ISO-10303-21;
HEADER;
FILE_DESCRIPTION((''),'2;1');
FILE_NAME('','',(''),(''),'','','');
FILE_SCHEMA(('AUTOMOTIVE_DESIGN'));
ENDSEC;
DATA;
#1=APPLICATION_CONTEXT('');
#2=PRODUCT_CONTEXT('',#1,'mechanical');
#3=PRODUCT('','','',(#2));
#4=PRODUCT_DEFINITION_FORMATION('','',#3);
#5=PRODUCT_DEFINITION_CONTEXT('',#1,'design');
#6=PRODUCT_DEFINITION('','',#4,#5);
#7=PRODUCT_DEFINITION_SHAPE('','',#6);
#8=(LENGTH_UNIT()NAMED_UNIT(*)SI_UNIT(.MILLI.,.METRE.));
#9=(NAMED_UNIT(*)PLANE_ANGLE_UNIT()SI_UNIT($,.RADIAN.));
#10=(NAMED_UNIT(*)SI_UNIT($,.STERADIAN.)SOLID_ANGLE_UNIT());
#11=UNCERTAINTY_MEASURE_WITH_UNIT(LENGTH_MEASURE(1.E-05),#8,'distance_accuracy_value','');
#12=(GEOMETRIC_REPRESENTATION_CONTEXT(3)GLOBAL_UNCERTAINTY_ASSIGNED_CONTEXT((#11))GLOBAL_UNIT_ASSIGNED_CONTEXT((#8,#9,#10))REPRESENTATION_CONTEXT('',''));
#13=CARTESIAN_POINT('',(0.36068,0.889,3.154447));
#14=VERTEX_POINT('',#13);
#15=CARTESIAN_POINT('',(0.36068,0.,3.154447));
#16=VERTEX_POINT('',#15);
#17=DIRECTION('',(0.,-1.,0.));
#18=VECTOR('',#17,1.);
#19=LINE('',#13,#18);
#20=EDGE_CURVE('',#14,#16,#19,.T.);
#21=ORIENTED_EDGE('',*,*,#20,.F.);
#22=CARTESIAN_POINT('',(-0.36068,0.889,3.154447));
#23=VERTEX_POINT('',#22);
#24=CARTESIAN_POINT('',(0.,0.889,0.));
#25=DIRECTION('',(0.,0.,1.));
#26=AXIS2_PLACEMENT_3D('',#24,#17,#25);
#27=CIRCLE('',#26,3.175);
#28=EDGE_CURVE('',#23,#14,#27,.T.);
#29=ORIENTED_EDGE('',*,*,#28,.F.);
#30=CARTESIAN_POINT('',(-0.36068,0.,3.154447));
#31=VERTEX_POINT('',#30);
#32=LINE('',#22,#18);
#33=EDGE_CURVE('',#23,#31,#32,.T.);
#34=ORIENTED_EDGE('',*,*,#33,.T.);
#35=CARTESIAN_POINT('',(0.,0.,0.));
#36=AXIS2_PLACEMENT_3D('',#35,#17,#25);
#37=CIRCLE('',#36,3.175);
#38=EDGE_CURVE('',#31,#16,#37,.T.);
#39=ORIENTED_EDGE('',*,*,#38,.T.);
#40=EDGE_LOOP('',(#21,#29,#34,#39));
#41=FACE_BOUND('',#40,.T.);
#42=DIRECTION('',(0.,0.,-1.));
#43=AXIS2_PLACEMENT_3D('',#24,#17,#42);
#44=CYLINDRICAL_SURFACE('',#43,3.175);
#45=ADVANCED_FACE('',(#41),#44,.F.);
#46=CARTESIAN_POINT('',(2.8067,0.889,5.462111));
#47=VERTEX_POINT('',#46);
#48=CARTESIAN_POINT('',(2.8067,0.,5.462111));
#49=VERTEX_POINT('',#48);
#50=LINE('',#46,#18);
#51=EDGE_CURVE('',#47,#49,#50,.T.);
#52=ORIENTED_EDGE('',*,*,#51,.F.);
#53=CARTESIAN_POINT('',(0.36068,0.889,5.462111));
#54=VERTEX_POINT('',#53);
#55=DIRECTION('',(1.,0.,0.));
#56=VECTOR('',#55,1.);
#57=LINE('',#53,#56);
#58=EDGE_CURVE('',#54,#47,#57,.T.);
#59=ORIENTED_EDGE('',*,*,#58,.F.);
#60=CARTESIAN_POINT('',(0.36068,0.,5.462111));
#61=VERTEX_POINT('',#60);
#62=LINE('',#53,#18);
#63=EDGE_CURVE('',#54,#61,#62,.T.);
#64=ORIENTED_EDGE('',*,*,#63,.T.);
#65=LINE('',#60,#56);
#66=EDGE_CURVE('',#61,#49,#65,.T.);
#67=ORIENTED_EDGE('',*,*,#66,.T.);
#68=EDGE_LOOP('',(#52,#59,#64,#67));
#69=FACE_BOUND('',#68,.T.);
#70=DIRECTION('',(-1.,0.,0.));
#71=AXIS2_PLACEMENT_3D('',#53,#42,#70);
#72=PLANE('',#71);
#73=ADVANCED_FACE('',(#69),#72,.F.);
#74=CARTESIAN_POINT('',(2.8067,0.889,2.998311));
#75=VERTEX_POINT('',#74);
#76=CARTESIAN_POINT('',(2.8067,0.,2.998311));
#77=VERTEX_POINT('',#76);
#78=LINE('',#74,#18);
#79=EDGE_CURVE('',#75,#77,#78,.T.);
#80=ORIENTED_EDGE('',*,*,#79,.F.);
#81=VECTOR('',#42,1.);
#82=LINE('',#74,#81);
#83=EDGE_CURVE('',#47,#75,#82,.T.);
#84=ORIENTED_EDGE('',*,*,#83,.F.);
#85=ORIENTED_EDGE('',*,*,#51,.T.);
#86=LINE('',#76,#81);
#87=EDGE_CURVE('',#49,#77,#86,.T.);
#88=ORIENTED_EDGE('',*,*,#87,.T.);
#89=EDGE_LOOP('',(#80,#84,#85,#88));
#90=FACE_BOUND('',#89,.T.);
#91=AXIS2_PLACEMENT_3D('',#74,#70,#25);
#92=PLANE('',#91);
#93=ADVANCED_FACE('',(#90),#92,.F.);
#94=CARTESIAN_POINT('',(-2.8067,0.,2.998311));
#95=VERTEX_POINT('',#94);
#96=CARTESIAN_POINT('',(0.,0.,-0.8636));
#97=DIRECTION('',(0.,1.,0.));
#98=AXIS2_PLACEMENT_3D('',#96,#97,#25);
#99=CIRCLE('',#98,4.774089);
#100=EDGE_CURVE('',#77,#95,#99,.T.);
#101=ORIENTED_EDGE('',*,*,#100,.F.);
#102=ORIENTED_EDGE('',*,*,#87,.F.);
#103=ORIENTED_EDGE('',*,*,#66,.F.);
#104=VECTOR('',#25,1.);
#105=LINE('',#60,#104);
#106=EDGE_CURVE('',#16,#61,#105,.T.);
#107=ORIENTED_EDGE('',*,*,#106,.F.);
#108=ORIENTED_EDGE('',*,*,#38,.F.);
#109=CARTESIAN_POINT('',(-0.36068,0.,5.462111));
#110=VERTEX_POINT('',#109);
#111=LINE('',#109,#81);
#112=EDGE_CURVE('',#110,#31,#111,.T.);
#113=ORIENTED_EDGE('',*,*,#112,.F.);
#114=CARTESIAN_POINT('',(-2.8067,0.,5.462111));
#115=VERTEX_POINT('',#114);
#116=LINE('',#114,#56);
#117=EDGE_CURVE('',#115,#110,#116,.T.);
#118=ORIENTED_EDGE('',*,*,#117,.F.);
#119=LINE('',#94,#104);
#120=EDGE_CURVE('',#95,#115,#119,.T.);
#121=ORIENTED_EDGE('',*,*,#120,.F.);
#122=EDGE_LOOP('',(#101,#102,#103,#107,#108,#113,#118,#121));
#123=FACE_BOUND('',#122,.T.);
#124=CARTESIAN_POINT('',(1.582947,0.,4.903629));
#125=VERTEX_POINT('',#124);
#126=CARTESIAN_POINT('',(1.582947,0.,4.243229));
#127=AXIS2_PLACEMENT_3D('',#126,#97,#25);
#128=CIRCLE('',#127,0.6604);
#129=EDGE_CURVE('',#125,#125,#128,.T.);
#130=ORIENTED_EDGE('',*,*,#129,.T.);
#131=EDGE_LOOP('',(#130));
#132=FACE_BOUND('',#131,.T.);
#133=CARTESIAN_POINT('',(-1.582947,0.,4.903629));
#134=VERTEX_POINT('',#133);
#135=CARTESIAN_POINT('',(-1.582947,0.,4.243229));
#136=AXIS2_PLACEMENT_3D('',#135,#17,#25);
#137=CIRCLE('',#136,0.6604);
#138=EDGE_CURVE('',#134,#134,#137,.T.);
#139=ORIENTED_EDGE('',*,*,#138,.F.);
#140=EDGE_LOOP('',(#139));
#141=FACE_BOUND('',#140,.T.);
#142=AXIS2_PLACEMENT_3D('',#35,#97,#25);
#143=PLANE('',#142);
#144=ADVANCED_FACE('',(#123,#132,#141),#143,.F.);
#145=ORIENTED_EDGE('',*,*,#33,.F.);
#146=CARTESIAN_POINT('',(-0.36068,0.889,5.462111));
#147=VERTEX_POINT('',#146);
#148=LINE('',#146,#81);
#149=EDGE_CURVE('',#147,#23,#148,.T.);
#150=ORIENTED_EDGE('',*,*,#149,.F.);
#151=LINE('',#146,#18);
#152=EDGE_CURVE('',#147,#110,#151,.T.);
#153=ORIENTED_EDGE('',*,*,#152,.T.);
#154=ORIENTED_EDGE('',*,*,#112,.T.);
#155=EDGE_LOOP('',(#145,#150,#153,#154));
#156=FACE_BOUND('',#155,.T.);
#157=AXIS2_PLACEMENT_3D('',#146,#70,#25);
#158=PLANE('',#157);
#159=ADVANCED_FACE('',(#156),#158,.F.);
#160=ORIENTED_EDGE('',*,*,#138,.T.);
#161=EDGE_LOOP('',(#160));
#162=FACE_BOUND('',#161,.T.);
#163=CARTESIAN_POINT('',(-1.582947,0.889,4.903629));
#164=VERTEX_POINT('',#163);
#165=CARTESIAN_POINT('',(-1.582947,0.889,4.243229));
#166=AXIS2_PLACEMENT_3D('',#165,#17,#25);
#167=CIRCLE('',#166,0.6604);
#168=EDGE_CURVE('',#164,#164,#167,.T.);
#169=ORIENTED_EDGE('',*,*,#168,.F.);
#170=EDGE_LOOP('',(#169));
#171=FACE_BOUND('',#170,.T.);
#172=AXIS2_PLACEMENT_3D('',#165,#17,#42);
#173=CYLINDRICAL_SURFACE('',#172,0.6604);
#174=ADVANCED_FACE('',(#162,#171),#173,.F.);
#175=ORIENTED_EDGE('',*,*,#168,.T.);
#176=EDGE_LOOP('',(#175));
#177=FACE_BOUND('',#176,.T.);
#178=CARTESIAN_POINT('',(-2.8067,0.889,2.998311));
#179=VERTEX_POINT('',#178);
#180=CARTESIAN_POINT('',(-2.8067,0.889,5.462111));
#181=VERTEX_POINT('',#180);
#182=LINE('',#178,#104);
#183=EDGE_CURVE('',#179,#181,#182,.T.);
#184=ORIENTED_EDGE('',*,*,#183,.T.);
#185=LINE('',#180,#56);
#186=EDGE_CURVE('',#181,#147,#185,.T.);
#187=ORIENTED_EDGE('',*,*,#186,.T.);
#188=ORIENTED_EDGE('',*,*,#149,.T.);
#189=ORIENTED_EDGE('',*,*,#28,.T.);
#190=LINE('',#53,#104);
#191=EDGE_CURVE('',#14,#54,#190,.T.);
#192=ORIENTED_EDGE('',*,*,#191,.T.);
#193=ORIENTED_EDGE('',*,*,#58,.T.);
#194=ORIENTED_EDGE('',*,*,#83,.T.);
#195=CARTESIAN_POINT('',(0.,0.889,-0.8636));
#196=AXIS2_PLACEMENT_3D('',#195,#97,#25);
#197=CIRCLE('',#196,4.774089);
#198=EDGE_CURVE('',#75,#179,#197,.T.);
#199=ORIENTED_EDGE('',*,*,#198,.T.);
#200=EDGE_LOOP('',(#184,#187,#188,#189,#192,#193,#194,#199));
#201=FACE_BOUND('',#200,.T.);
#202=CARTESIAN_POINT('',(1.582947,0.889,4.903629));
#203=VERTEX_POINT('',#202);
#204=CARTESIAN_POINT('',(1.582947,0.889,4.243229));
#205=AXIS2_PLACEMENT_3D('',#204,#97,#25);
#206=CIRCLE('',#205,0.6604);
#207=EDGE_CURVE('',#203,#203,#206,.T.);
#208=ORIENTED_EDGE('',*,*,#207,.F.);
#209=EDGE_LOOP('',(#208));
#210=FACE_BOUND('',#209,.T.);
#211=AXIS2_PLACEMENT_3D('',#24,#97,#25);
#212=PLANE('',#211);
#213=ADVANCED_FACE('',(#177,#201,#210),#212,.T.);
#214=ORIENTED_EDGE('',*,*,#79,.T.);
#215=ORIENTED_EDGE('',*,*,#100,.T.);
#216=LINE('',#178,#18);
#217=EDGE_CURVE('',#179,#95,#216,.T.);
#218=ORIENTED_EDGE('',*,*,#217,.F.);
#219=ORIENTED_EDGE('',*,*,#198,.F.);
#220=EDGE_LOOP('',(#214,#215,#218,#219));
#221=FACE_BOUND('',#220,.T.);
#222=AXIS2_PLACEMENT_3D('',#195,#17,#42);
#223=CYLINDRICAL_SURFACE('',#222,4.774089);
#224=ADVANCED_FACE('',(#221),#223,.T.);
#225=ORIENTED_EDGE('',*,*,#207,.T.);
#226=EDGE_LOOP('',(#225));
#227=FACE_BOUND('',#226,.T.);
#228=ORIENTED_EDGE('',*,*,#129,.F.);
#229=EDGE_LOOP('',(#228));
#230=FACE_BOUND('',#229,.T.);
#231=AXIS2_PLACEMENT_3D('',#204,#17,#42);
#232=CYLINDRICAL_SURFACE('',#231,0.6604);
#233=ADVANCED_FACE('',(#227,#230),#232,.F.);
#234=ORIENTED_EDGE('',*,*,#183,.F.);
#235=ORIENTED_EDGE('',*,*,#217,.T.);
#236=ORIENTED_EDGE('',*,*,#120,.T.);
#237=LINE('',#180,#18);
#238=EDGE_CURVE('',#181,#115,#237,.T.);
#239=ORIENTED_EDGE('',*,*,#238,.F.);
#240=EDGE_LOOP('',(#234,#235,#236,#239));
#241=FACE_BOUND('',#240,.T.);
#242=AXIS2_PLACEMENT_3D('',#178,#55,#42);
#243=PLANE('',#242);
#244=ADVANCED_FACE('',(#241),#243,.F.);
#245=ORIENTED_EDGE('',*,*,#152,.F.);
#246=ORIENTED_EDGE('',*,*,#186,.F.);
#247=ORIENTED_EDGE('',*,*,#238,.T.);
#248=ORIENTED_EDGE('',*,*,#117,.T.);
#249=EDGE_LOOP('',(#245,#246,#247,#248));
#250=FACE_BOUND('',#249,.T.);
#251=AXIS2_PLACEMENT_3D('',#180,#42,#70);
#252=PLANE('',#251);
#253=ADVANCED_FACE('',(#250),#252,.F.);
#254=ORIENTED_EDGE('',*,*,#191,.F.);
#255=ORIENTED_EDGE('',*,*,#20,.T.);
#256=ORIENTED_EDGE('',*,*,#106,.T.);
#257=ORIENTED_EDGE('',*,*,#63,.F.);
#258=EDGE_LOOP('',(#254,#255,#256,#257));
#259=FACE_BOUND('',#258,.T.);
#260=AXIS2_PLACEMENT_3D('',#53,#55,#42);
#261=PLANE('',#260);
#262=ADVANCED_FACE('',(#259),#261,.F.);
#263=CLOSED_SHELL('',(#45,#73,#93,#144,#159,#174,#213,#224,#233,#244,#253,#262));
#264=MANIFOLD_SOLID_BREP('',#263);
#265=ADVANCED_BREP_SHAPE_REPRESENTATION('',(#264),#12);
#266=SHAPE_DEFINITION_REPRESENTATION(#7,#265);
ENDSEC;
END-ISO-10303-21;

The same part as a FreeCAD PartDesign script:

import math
import FreeCAD as App
import Part
import Sketcher
Q = App.Units.Quantity

doc = App.newDocument("Part")
body = doc.addObject("PartDesign::Body", "Body")

# Sketch on XZ plane
sketch1 = body.newObject("Sketcher::SketchObject", "Sketch")
sketch1.AttachmentSupport = (doc.getObject("XZ_Plane"), [""])
sketch1.MapMode = "FlatFace"
sketch1.addGeometry([
    Part.LineSegment(App.Vector(-2.8, 5.5, 0), App.Vector(-0.4, 5.5, 0)),  # 0
    Part.LineSegment(App.Vector(-0.4, 5.5, 0), App.Vector(-0.4, 3.2, 0)),  # 1
    Part.ArcOfCircle(Part.Circle(App.Vector(0, 0, 0), App.Vector(0, 0, 1), 3.2), math.radians(97), math.radians(443)),  # 2
    Part.LineSegment(App.Vector(0.4, 3.2, 0), App.Vector(0.4, 5.5, 0)),  # 3
    Part.LineSegment(App.Vector(0.4, 5.5, 0), App.Vector(2.8, 5.5, 0)),  # 4
    Part.LineSegment(App.Vector(2.8, 5.5, 0), App.Vector(2.8, 3, 0)),  # 5
    Part.ArcOfCircle(Part.Circle(App.Vector(0, -0.9, 0), App.Vector(0, 0, 1), 4.8), math.radians(126), math.radians(414)),  # 6
    Part.LineSegment(App.Vector(-2.8, 3, 0), App.Vector(-2.8, 5.5, 0)),  # 7
], False)
sketch1.addConstraint([
    Sketcher.Constraint("Coincident", 0, 2, 1, 1),
    Sketcher.Constraint("Coincident", 1, 2, 2, 1),
    Sketcher.Constraint("Coincident", 2, 2, 3, 1),
    Sketcher.Constraint("Coincident", 3, 2, 4, 1),
    Sketcher.Constraint("Coincident", 4, 2, 5, 1),
    Sketcher.Constraint("Coincident", 5, 2, 6, 2),
    Sketcher.Constraint("Coincident", 6, 1, 7, 1),
    Sketcher.Constraint("Coincident", 7, 2, 0, 1),
    Sketcher.Constraint("Horizontal", 0),
    Sketcher.Constraint("Vertical", 1),
    Sketcher.Constraint("Vertical", 3),
    Sketcher.Constraint("Horizontal", 4),
    Sketcher.Constraint("Vertical", 5),
    Sketcher.Constraint("Vertical", 7),
    Sketcher.Constraint("Coincident", 2, 3, -1, 1),
    Sketcher.Constraint("Symmetric", 0, 2, 3, 2, -2),
    Sketcher.Constraint("Symmetric", 5, 2, 6, 1, -2),
    Sketcher.Constraint("Radius", 2, Q("0.125 in")),
    Sketcher.Constraint("DistanceY", 5, 2, 5, 1, Q("0.097 in")),
    Sketcher.Constraint("DistanceX", 0, 1, 0, 2, Q("0.0963 in")),
    Sketcher.Constraint("DistanceY", 6, 3, -1, 1, Q("0.034 in")),
    Sketcher.Constraint("Radius", 6, 4.774089),
    Sketcher.Constraint("DistanceX", 0, 2, -1, 1, Q("0.0142 in")),
])
pad1 = body.newObject("PartDesign::Pad", "Pad")
pad1.Profile = sketch1
pad1.Length = Q("0.035 in")
pad1.Reversed = True

# Sketch on XZ plane
sketch2 = body.newObject("Sketcher::SketchObject", "Sketch001")
sketch2.AttachmentSupport = (doc.getObject("XZ_Plane"), [""])
sketch2.MapMode = "FlatFace"
sketch2.addGeometry(Part.Circle(App.Vector(1.6, 4.2, 0), App.Vector(0, 0, 1), 0.7), False)
sketch2.addConstraint([
    Sketcher.Constraint("Diameter", 0, Q("0.052 in")),
    Sketcher.Constraint("DistanceY", -1, 1, 0, 3, 4.243229),
    Sketcher.Constraint("DistanceX", -1, 1, 0, 3, 1.582947),
])
pocket1 = body.newObject("PartDesign::Pocket", "Pocket")
pocket1.Profile = sketch2
pocket1.Type = "ThroughAll"
doc.recompute()

mirrored = body.newObject("PartDesign::Mirrored", "Mirrored")
mirrored.Originals = [pocket1]
mirrored.MirrorPlane = (doc.getObject("YZ_Plane"), [""])
body.Tip = mirrored

doc.recompute()
